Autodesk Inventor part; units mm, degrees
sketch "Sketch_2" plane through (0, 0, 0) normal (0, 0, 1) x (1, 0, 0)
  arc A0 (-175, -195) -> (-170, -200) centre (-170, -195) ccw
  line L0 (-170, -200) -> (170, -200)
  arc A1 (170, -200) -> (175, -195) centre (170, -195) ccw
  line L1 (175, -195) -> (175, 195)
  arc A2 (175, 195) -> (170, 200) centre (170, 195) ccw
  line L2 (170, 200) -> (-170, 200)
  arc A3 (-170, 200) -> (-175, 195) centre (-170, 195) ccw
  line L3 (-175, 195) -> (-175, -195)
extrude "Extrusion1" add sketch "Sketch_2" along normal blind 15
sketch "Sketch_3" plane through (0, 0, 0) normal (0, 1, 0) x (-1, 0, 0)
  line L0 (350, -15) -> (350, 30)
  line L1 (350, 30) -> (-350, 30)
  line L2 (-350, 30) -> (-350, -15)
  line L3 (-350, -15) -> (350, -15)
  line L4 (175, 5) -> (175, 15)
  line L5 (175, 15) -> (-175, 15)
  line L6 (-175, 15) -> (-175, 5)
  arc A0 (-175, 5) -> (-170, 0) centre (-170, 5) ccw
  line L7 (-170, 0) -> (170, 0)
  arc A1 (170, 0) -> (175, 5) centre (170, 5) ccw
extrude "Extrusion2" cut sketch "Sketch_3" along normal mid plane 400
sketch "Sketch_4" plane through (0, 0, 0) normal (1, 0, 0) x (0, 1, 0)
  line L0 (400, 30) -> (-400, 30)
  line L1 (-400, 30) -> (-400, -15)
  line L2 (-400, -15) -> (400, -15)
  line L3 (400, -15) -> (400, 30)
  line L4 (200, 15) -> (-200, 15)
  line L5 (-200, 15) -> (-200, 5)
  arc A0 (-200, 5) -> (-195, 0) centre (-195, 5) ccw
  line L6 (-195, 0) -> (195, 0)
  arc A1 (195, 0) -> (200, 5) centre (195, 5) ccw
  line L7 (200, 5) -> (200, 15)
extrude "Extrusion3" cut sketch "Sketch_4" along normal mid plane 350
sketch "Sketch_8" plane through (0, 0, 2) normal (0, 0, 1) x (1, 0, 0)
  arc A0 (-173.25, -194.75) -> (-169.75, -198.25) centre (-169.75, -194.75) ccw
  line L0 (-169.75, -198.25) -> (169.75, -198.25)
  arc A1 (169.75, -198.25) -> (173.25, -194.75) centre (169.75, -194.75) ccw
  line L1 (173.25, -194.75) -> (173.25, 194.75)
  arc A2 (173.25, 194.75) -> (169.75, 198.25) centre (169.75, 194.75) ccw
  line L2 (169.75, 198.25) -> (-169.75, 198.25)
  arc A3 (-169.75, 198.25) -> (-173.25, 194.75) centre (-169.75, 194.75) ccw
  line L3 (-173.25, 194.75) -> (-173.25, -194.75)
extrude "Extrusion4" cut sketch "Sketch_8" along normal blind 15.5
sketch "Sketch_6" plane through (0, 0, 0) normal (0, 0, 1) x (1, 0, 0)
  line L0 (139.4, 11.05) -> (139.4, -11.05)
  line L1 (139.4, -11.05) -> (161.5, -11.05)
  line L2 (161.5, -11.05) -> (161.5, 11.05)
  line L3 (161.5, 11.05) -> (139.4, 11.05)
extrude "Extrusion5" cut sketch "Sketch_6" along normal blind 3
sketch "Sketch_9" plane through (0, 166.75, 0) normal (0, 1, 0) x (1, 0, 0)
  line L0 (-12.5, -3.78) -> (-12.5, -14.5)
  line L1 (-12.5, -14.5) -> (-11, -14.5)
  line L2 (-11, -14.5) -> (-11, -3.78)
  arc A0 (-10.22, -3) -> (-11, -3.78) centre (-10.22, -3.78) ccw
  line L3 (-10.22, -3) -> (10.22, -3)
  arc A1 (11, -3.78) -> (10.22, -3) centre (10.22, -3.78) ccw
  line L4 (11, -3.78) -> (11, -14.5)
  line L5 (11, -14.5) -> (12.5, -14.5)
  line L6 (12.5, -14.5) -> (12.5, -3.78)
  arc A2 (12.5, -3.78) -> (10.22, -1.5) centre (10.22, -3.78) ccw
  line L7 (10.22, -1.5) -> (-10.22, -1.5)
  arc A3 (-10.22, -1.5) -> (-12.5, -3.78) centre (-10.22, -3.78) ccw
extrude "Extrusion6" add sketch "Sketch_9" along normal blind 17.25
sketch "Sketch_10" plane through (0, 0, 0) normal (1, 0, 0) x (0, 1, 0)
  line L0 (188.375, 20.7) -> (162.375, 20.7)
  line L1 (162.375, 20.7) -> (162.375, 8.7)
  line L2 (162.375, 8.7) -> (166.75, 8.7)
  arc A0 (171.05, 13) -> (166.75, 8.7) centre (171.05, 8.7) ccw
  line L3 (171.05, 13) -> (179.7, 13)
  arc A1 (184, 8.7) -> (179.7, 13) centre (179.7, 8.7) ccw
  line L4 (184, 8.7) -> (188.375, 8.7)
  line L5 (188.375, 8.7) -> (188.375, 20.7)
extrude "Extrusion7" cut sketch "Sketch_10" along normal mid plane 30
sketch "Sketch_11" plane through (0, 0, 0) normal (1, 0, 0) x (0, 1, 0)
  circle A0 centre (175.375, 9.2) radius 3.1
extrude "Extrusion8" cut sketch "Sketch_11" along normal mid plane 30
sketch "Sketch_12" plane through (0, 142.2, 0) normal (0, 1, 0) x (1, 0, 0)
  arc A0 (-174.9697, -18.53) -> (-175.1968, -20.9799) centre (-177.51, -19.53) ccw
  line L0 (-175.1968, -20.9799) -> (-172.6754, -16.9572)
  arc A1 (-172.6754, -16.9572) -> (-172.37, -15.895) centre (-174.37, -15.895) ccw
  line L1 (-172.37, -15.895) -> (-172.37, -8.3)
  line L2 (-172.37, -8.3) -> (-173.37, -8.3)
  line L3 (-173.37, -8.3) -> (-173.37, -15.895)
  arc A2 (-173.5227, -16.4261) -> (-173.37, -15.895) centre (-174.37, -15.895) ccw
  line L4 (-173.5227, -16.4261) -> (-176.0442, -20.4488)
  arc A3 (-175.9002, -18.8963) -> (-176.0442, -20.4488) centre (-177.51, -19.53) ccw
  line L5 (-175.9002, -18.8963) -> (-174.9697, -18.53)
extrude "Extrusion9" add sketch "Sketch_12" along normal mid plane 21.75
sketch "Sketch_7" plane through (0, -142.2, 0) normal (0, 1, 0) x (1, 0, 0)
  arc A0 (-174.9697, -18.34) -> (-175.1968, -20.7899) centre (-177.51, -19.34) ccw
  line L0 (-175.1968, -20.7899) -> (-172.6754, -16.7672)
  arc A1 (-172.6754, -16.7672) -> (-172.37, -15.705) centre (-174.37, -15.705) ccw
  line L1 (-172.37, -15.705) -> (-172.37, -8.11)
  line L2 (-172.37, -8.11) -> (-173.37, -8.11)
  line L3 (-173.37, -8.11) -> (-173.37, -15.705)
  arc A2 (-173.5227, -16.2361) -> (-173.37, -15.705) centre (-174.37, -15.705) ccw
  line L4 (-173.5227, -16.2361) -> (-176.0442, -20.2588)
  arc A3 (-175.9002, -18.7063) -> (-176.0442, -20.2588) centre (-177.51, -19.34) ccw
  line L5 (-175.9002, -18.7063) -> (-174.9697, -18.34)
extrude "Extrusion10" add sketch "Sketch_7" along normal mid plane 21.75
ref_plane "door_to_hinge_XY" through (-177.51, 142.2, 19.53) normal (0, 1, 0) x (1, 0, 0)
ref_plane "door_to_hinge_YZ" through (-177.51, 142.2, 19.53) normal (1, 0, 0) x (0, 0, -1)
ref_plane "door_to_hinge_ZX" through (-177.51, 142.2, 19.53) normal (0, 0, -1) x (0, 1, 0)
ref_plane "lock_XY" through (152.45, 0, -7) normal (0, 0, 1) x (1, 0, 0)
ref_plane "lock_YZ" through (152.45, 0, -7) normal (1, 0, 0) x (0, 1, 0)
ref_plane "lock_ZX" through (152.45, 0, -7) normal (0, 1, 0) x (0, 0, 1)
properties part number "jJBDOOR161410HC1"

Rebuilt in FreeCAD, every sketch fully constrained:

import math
import FreeCAD as App
import Part
import Sketcher

V = App.Vector
Q = App.Units.Quantity


def add_polygon(sketch, points):
    """Adds a closed chain of lines whose ends are joined by coincident constraints."""
    first, n = sketch.GeometryCount, len(points)
    for a, b in zip(points, points[1:] + points[:1]):
        sketch.addGeometry(Part.LineSegment(App.Vector(*a, 0), App.Vector(*b, 0)), False)
    for i in range(n):
        sketch.addConstraint(Sketcher.Constraint("Coincident", first + i, 2, first + (i + 1) % n, 1))

doc = App.newDocument("Part")
body = doc.addObject("PartDesign::Body", "Body")

# Sketch on XY plane
sketch1 = body.newObject("Sketcher::SketchObject", "Sketch")
sketch1.AttachmentSupport = (doc.getObject("XY_Plane"), [""])
sketch1.MapMode = "FlatFace"
sketch1.addGeometry([
    Part.LineSegment(V(-175, 195, 0), V(-175, -195, 0)),  # 0
    Part.ArcOfCircle(Part.Circle(V(-170, -195, 0), V(0, 0, 1), 5), math.radians(180), math.radians(270)),  # 1
    Part.LineSegment(V(-170, -200, 0), V(170, -200, 0)),  # 2
    Part.ArcOfCircle(Part.Circle(V(170, -195, 0), V(0, 0, 1), 5), math.radians(-90), math.radians(0)),  # 3
    Part.LineSegment(V(175, -195, 0), V(175, 195, 0)),  # 4
    Part.ArcOfCircle(Part.Circle(V(170, 195, 0), V(0, 0, 1), 5), math.radians(0), math.radians(90)),  # 5
    Part.LineSegment(V(170, 200, 0), V(-170, 200, 0)),  # 6
    Part.ArcOfCircle(Part.Circle(V(-170, 195, 0), V(0, 0, 1), 5), math.radians(90), math.radians(180)),  # 7
], False)
sketch1.addConstraint([
    Sketcher.Constraint("Tangent", 0, 2, 1, 1),
    Sketcher.Constraint("Tangent", 1, 2, 2, 1),
    Sketcher.Constraint("Tangent", 2, 2, 3, 1),
    Sketcher.Constraint("Tangent", 3, 2, 4, 1),
    Sketcher.Constraint("Tangent", 4, 2, 5, 1),
    Sketcher.Constraint("Tangent", 5, 2, 6, 1),
    Sketcher.Constraint("Tangent", 6, 2, 7, 1),
    Sketcher.Constraint("Tangent", 7, 2, 0, 1),
    Sketcher.Constraint("Vertical", 0),
    Sketcher.Constraint("Horizontal", 2),
    Sketcher.Constraint("Vertical", 4),
    Sketcher.Constraint("Horizontal", 6),
    Sketcher.Constraint("Equal", 1, 3),
    Sketcher.Constraint("Equal", 3, 5),
    Sketcher.Constraint("Equal", 5, 7),
    Sketcher.Constraint("Symmetric", 1, 3, 5, 3, -1, 1),
    Sketcher.Constraint("Radius", 1, 5.0),
    Sketcher.Constraint("DistanceX", 2, 1, 2, 2, 340.0),
    Sketcher.Constraint("DistanceY", 0, 2, 0, 1, 390.0),
])
pad1 = body.newObject("PartDesign::Pad", "Pad")
pad1.Profile = sketch1
pad1.Length = 15

# Sketch on XZ plane
sketch2 = body.newObject("Sketcher::SketchObject", "Sketch001")
sketch2.AttachmentSupport = (doc.getObject("XZ_Plane"), [""])
sketch2.MapMode = "FlatFace"
add_polygon(sketch2, [(350, -15), (-350, -15), (-350, 30), (350, 30)])  # lines 0-3
sketch2.addGeometry(Part.LineSegment(V(-175, 15, 0), V(-175, 5, 0)), False)  # 4
sketch2.addGeometry(Part.ArcOfCircle(Part.Circle(V(-170, 5, 0), V(0, 0, 1), 5), math.radians(180), math.radians(270)), False)  # 5
sketch2.addGeometry(Part.LineSegment(V(-170, 0, 0), V(170, 0, 0)), False)  # 6
sketch2.addGeometry(Part.ArcOfCircle(Part.Circle(V(170, 5, 0), V(0, 0, 1), 5), math.radians(-90), math.radians(0)), False)  # 7
sketch2.addGeometry(Part.LineSegment(V(175, 5, 0), V(175, 15, 0)), False)  # 8
sketch2.addGeometry(Part.LineSegment(V(175, 15, 0), V(-175, 15, 0)), False)  # 9
sketch2.addConstraint([
    Sketcher.Constraint("Tangent", 4, 2, 5, 1),
    Sketcher.Constraint("Tangent", 5, 2, 6, 1),
    Sketcher.Constraint("Tangent", 6, 2, 7, 1),
    Sketcher.Constraint("Tangent", 7, 2, 8, 1),
    Sketcher.Constraint("Coincident", 8, 2, 9, 1),
    Sketcher.Constraint("Coincident", 9, 2, 4, 1),
    Sketcher.Constraint("Horizontal", 0),
    Sketcher.Constraint("Vertical", 1),
    Sketcher.Constraint("Horizontal", 2),
    Sketcher.Constraint("Vertical", 3),
    Sketcher.Constraint("Vertical", 4),
    Sketcher.Constraint("Horizontal", 6),
    Sketcher.Constraint("Vertical", 8),
    Sketcher.Constraint("Horizontal", 9),
    Sketcher.Constraint("Equal", 5, 7),
    Sketcher.Constraint("Symmetric", 5, 2, 6, 2, -1, 1),
    Sketcher.Constraint("Radius", 5, 5.0),
    Sketcher.Constraint("DistanceX", 0, 2, 0, 1, 700.0),
    Sketcher.Constraint("DistanceX", 6, 1, 6, 2, 340.0),
    Sketcher.Constraint("DistanceY", 1, 1, 1, 2, 45.0),
    Sketcher.Constraint("DistanceY", 4, 2, 4, 1, 10.0),
    Sketcher.Constraint("DistanceX", 0, 2, -1, 1, 350.0),
    Sketcher.Constraint("DistanceY", 0, 2, -1, 1, 15.0),
])
pocket1 = body.newObject("PartDesign::Pocket", "Pocket")
pocket1.Profile = sketch2
pocket1.Length = 400
pocket1.Midplane = True

# Sketch on YZ plane
sketch3 = body.newObject("Sketcher::SketchObject", "Sketch002")
sketch3.AttachmentSupport = (doc.getObject("YZ_Plane"), [""])
sketch3.MapMode = "FlatFace"
add_polygon(sketch3, [(400, -15), (400, 30), (-400, 30), (-400, -15)])  # lines 0-3
sketch3.addGeometry(Part.LineSegment(V(-200, 15, 0), V(200, 15, 0)), False)  # 4
sketch3.addGeometry(Part.LineSegment(V(200, 15, 0), V(200, 5, 0)), False)  # 5
sketch3.addGeometry(Part.ArcOfCircle(Part.Circle(V(195, 5, 0), V(0, 0, 1), 5), math.radians(-90), math.radians(0)), False)  # 6
sketch3.addGeometry(Part.LineSegment(V(195, 0, 0), V(-195, 0, 0)), False)  # 7
sketch3.addGeometry(Part.ArcOfCircle(Part.Circle(V(-195, 5, 0), V(0, 0, 1), 5), math.radians(180), math.radians(270)), False)  # 8
sketch3.addGeometry(Part.LineSegment(V(-200, 5, 0), V(-200, 15, 0)), False)  # 9
sketch3.addConstraint([
    Sketcher.Constraint("Coincident", 4, 2, 5, 1),
    Sketcher.Constraint("Tangent", 5, 2, 6, 2),
    Sketcher.Constraint("Tangent", 6, 1, 7, 1),
    Sketcher.Constraint("Tangent", 7, 2, 8, 2),
    Sketcher.Constraint("Tangent", 8, 1, 9, 1),
    Sketcher.Constraint("Coincident", 9, 2, 4, 1),
    Sketcher.Constraint("Vertical", 0),
    Sketcher.Constraint("Horizontal", 1),
    Sketcher.Constraint("Vertical", 2),
    Sketcher.Constraint("Horizontal", 3),
    Sketcher.Constraint("Horizontal", 4),
    Sketcher.Constraint("Vertical", 5),
    Sketcher.Constraint("Horizontal", 7),
    Sketcher.Constraint("Vertical", 9),
    Sketcher.Constraint("Equal", 6, 8),
    Sketcher.Constraint("Symmetric", 6, 1, 7, 2, -1, 1),
    Sketcher.Constraint("Radius", 6, 5.0),
    Sketcher.Constraint("DistanceX", 1, 2, 1, 1, 800.0),
    Sketcher.Constraint("DistanceX", 4, 1, 4, 2, 400.0),
    Sketcher.Constraint("DistanceY", 0, 1, 0, 2, 45.0),
    Sketcher.Constraint("DistanceY", 5, 2, 5, 1, 10.0),
    Sketcher.Constraint("DistanceX", -1, 1, 0, 2, 400.0),
    Sketcher.Constraint("DistanceY", -1, 1, 0, 2, 30.0),
])
pocket2 = body.newObject("PartDesign::Pocket", "Pocket001")
pocket2.Profile = sketch3
pocket2.Length = 350
pocket2.Midplane = True

# Sketch on XY plane
sketch4 = body.newObject("Sketcher::SketchObject", "Sketch003")
sketch4.AttachmentSupport = (doc.getObject("XY_Plane"), [""])
sketch4.MapMode = "FlatFace"
sketch4.AttachmentOffset = App.Placement(V(0, 0, 2), App.Rotation())
sketch4.addGeometry([
    Part.LineSegment(V(-173.2, 194.8, 0), V(-173.2, -194.8, 0)),  # 0
    Part.ArcOfCircle(Part.Circle(V(-169.8, -194.8, 0), V(0, 0, 1), 3.5), math.radians(180), math.radians(270)),  # 1
    Part.LineSegment(V(-169.8, -198.2, 0), V(169.8, -198.2, 0)),  # 2
    Part.ArcOfCircle(Part.Circle(V(169.8, -194.8, 0), V(0, 0, 1), 3.5), math.radians(-90), math.radians(0)),  # 3
    Part.LineSegment(V(173.2, -194.8, 0), V(173.2, 194.8, 0)),  # 4
    Part.ArcOfCircle(Part.Circle(V(169.8, 194.8, 0), V(0, 0, 1), 3.5), math.radians(0), math.radians(90)),  # 5
    Part.LineSegment(V(169.8, 198.2, 0), V(-169.8, 198.2, 0)),  # 6
    Part.ArcOfCircle(Part.Circle(V(-169.8, 194.8, 0), V(0, 0, 1), 3.5), math.radians(90), math.radians(180)),  # 7
], False)
sketch4.addConstraint([
    Sketcher.Constraint("Tangent", 0, 2, 1, 1),
    Sketcher.Constraint("Tangent", 1, 2, 2, 1),
    Sketcher.Constraint("Tangent", 2, 2, 3, 1),
    Sketcher.Constraint("Tangent", 3, 2, 4, 1),
    Sketcher.Constraint("Tangent", 4, 2, 5, 1),
    Sketcher.Constraint("Tangent", 5, 2, 6, 1),
    Sketcher.Constraint("Tangent", 6, 2, 7, 1),
    Sketcher.Constraint("Tangent", 7, 2, 0, 1),
    Sketcher.Constraint("Vertical", 0),
    Sketcher.Constraint("Horizontal", 2),
    Sketcher.Constraint("Vertical", 4),
    Sketcher.Constraint("Horizontal", 6),
    Sketcher.Constraint("Equal", 1, 3),
    Sketcher.Constraint("Equal", 3, 5),
    Sketcher.Constraint("Equal", 5, 7),
    Sketcher.Constraint("Symmetric", 1, 3, 5, 3, -1, 1),
    Sketcher.Constraint("Radius", 1, 3.5),
    Sketcher.Constraint("DistanceX", 2, 1, 2, 2, 339.5),
    Sketcher.Constraint("DistanceY", 0, 2, 0, 1, 389.5),
])
pocket3 = body.newObject("PartDesign::Pocket", "Pocket002")
pocket3.Profile = sketch4
pocket3.Length = 15.5
pocket3.Reversed = True

# Sketch on XY plane
sketch5 = body.newObject("Sketcher::SketchObject", "Sketch004")
sketch5.AttachmentSupport = (doc.getObject("XY_Plane"), [""])
sketch5.MapMode = "FlatFace"
add_polygon(sketch5, [(162, 11), (139, 11), (139, -11), (162, -11)])  # lines 0-3
sketch5.addConstraint([
    Sketcher.Constraint("Horizontal", 0),
    Sketcher.Constraint("Vertical", 1),
    Sketcher.Constraint("Horizontal", 2),
    Sketcher.Constraint("Vertical", 3),
    Sketcher.Constraint("Equal", 2, 1),
    Sketcher.Constraint("DistanceX", 0, 2, 0, 1, 22.1),
    Sketcher.Constraint("DistanceX", -1, 1, 0, 2, 139.4),
    Sketcher.Constraint("DistanceY", -1, 1, 0, 2, 11.05),
])
pocket4 = body.newObject("PartDesign::Pocket", "Pocket003")
pocket4.Profile = sketch5
pocket4.Length = 3
pocket4.Reversed = True

# Sketch on XZ plane
sketch6 = body.newObject("Sketcher::SketchObject", "Sketch005")
sketch6.AttachmentSupport = (doc.getObject("XZ_Plane"), [""])
sketch6.MapMode = "FlatFace"
sketch6.AttachmentOffset = App.Placement(V(0, 0, -166.75), App.Rotation())
sketch6.addGeometry([
    Part.ArcOfCircle(Part.Circle(V(-10.2, 3.8, 0), V(0, 0, 1), 2.3), math.radians(180), math.radians(270)),  # 0
    Part.LineSegment(V(-12.5, 3.8, 0), V(-12.5, 14.5, 0)),  # 1
    Part.LineSegment(V(-12.5, 14.5, 0), V(-11, 14.5, 0)),  # 2
    Part.LineSegment(V(-11, 14.5, 0), V(-11, 3.8, 0)),  # 3
    Part.ArcOfCircle(Part.Circle(V(-10.2, 3.8, 0), V(0, 0, 1), 0.8), math.radians(180), math.radians(270)),  # 4
    Part.LineSegment(V(-10.2, 3, 0), V(10.2, 3, 0)),  # 5
    Part.ArcOfCircle(Part.Circle(V(10.2, 3.8, 0), V(0, 0, 1), 0.8), math.radians(-90), math.radians(0)),  # 6
    Part.LineSegment(V(11, 3.8, 0), V(11, 14.5, 0)),  # 7
    Part.LineSegment(V(11, 14.5, 0), V(12.5, 14.5, 0)),  # 8
    Part.LineSegment(V(12.5, 14.5, 0), V(12.5, 3.8, 0)),  # 9
    Part.ArcOfCircle(Part.Circle(V(10.2, 3.8, 0), V(0, 0, 1), 2.3), math.radians(-90), math.radians(0)),  # 10
    Part.LineSegment(V(10.2, 1.5, 0), V(-10.2, 1.5, 0)),  # 11
], False)
sketch6.addConstraint([
    Sketcher.Constraint("Tangent", 0, 1, 1, 1),
    Sketcher.Constraint("Coincident", 1, 2, 2, 1),
    Sketcher.Constraint("Coincident", 2, 2, 3, 1),
    Sketcher.Constraint("Tangent", 3, 2, 4, 1),
    Sketcher.Constraint("Tangent", 4, 2, 5, 1),
    Sketcher.Constraint("Tangent", 5, 2, 6, 1),
    Sketcher.Constraint("Tangent", 6, 2, 7, 1),
    Sketcher.Constraint("Coincident", 7, 2, 8, 1),
    Sketcher.Constraint("Coincident", 8, 2, 9, 1),
    Sketcher.Constraint("Tangent", 9, 2, 10, 2),
    Sketcher.Constraint("Tangent", 10, 1, 11, 1),
    Sketcher.Constraint("Tangent", 11, 2, 0, 2),
    Sketcher.Constraint("Vertical", 1),
    Sketcher.Constraint("Horizontal", 2),
    Sketcher.Constraint("Vertical", 3),
    Sketcher.Constraint("Horizontal", 5),
    Sketcher.Constraint("Vertical", 7),
    Sketcher.Constraint("Horizontal", 8),
    Sketcher.Constraint("Vertical", 9),
    Sketcher.Constraint("Horizontal", 11),
    Sketcher.Constraint("Coincident", 4, 3, 0, 3),
    Sketcher.Constraint("Coincident", 10, 3, 6, 3),
    Sketcher.Constraint("Equal", 4, 6),
    Sketcher.Constraint("Symmetric", 2, 2, 7, 2, -2),
    Sketcher.Constraint("Radius", 0, 2.28),
    Sketcher.Constraint("Radius", 4, 0.78),
    Sketcher.Constraint("DistanceX", 2, 2, -1, 1, 11.0),
    Sketcher.Constraint("DistanceY", -1, 1, 4, 2, 3.0),
    Sketcher.Constraint("DistanceY", 1, 1, 1, 2, 10.72),
])
pad2 = body.newObject("PartDesign::Pad", "Pad001")
pad2.Profile = sketch6
pad2.Length = 17.25
pad2.Reversed = True

# Sketch on YZ plane
sketch7 = body.newObject("Sketcher::SketchObject", "Sketch006")
sketch7.AttachmentSupport = (doc.getObject("YZ_Plane"), [""])
sketch7.MapMode = "FlatFace"
sketch7.addGeometry([
    Part.LineSegment(V(188.4, 8.7, 0), V(188.4, 20.7, 0)),  # 0
    Part.LineSegment(V(188.4, 20.7, 0), V(162.4, 20.7, 0)),  # 1
    Part.LineSegment(V(162.4, 20.7, 0), V(162.4, 8.7, 0)),  # 2
    Part.LineSegment(V(162.4, 8.7, 0), V(166.8, 8.7, 0)),  # 3
    Part.ArcOfCircle(Part.Circle(V(171.1, 8.7, 0), V(0, 0, 1), 4.3), math.radians(90), math.radians(180)),  # 4
    Part.LineSegment(V(171.1, 13, 0), V(179.7, 13, 0)),  # 5
    Part.ArcOfCircle(Part.Circle(V(179.7, 8.7, 0), V(0, 0, 1), 4.3), math.radians(0), math.radians(90)),  # 6
    Part.LineSegment(V(184, 8.7, 0), V(188.4, 8.7, 0)),  # 7
], False)
sketch7.addConstraint([
    Sketcher.Constraint("Coincident", 0, 2, 1, 1),
    Sketcher.Constraint("Coincident", 1, 2, 2, 1),
    Sketcher.Constraint("Coincident", 2, 2, 3, 1),
    Sketcher.Constraint("Coincident", 3, 2, 4, 2),
    Sketcher.Constraint("Tangent", 4, 1, 5, 1),
    Sketcher.Constraint("Tangent", 5, 2, 6, 2),
    Sketcher.Constraint("Coincident", 6, 1, 7, 1),
    Sketcher.Constraint("Coincident", 7, 2, 0, 1),
    Sketcher.Constraint("Vertical", 0),
    Sketcher.Constraint("Horizontal", 1),
    Sketcher.Constraint("Vertical", 2),
    Sketcher.Constraint("Horizontal", 3),
    Sketcher.Constraint("Horizontal", 5),
    Sketcher.Constraint("Horizontal", 7),
    Sketcher.Constraint("Equal", 4, 6),
    Sketcher.Constraint("Horizontal", 6, 3, 2, 2),
    Sketcher.Constraint("Horizontal", 3, 2, 6, 1),
    Sketcher.Constraint("Equal", 3, 7),
    Sketcher.Constraint("Radius", 4, 4.3),
    Sketcher.Constraint("DistanceX", 1, 2, 1, 1, 26.0),
    Sketcher.Constraint("DistanceY", 0, 1, 0, 2, 12.0),
    Sketcher.Constraint("DistanceY", -1, 1, 4, 1, 13.0),
    Sketcher.Constraint("DistanceX", -1, 1, 6, 1, 184.0),
    Sketcher.Constraint("DistanceX", 5, 1, 5, 2, 8.65),
])
pocket5 = body.newObject("PartDesign::Pocket", "Pocket004")
pocket5.Profile = sketch7
pocket5.Length = 30
pocket5.Midplane = True

# Sketch on YZ plane
sketch8 = body.newObject("Sketcher::SketchObject", "Sketch007")
sketch8.AttachmentSupport = (doc.getObject("YZ_Plane"), [""])
sketch8.MapMode = "FlatFace"
sketch8.addGeometry(Part.Circle(V(175.4, 9.2, 0), V(0, 0, 1), 3.1), False)
sketch8.addConstraint([
    Sketcher.Constraint("Diameter", 0, 6.2),
    Sketcher.Constraint("DistanceY", -1, 1, 0, 3, 9.2),
    Sketcher.Constraint("DistanceX", -1, 1, 0, 3, 175.375),
])
pocket6 = body.newObject("PartDesign::Pocket", "Pocket005")
pocket6.Profile = sketch8
pocket6.Length = 30
pocket6.Midplane = True

# Sketch on XZ plane
sketch9 = body.newObject("Sketcher::SketchObject", "Sketch008")
sketch9.AttachmentSupport = (doc.getObject("XZ_Plane"), [""])
sketch9.MapMode = "FlatFace"
sketch9.AttachmentOffset = App.Placement(V(0, 0, -142.2), App.Rotation())
sketch9.addGeometry([
    Part.LineSegment(V(-175.9, 18.9, 0), V(-175, 18.5, 0)),  # 0
    Part.ArcOfCircle(Part.Circle(V(-177.5, 19.5, 0), V(0, 0, 1), 2.7), math.radians(32), math.radians(339)),  # 1
    Part.LineSegment(V(-175.2, 21, 0), V(-172.7, 17, 0)),  # 2
    Part.ArcOfCircle(Part.Circle(V(-174.4, 15.9, 0), V(0, 0, 1), 2), math.radians(0), math.radians(32)),  # 3
    Part.LineSegment(V(-172.4, 15.9, 0), V(-172.4, 8.3, 0)),  # 4
    Part.LineSegment(V(-172.4, 8.3, 0), V(-173.4, 8.3, 0)),  # 5
    Part.LineSegment(V(-173.4, 8.3, 0), V(-173.4, 15.9, 0)),  # 6
    Part.ArcOfCircle(Part.Circle(V(-174.4, 15.9, 0), V(0, 0, 1), 1), math.radians(0), math.radians(32)),  # 7
    Part.LineSegment(V(-173.5, 16.4, 0), V(-176, 20.4, 0)),  # 8
    Part.ArcOfCircle(Part.Circle(V(-177.5, 19.5, 0), V(0, 0, 1), 1.7), math.radians(32), math.radians(339)),  # 9
], False)
sketch9.addConstraint([
    Sketcher.Constraint("Coincident", 0, 2, 1, 2),
    Sketcher.Constraint("Tangent", 1, 1, 2, 1),
    Sketcher.Constraint("Tangent", 2, 2, 3, 2),
    Sketcher.Constraint("Tangent", 3, 1, 4, 1),
    Sketcher.Constraint("Coincident", 4, 2, 5, 1),
    Sketcher.Constraint("Coincident", 5, 2, 6, 1),
    Sketcher.Constraint("Tangent", 6, 2, 7, 1),
    Sketcher.Constraint("Tangent", 7, 2, 8, 1),
    Sketcher.Constraint("Tangent", 8, 2, 9, 1),
    Sketcher.Constraint("Coincident", 9, 2, 0, 1),
    Sketcher.Constraint("Vertical", 4),
    Sketcher.Constraint("Horizontal", 5),
    Sketcher.Constraint("Vertical", 6),
    Sketcher.Constraint("Coincident", 7, 3, 3, 3),
    Sketcher.Constraint("Coincident", 9, 3, 1, 3),
    Sketcher.Constraint("Parallel", 2, 8),
    Sketcher.Constraint("Radius", 3, 2.0),
    Sketcher.Constraint("Radius", 7, 1.0),
    Sketcher.Constraint("Radius", 1, 2.73),
    Sketcher.Constraint("DistanceY", 0, 2, 1, 3, 1.0),
    Sketcher.Constraint("DistanceY", -1, 1, 4, 2, 8.3),
    Sketcher.Constraint("Angle", 2, Q("-57.9208 deg")),
    Sketcher.Constraint("DistanceY", 4, 2, 4, 1, 7.595),
    Sketcher.Constraint("DistanceX", 1, 3, -1, 1, 177.51),
    Sketcher.Constraint("DistanceY", -1, 1, 1, 3, 19.53),
    Sketcher.Constraint("DistanceX", 8, 2, 9, 2, 0.144),
])
pad3 = body.newObject("PartDesign::Pad", "Pad002")
pad3.Profile = sketch9
pad3.Length = 21.75
pad3.Midplane = True

# Sketch on XZ plane
sketch10 = body.newObject("Sketcher::SketchObject", "Sketch009")
sketch10.AttachmentSupport = (doc.getObject("XZ_Plane"), [""])
sketch10.MapMode = "FlatFace"
sketch10.AttachmentOffset = App.Placement(V(0, 0, 142.2), App.Rotation())
sketch10.addGeometry([
    Part.LineSegment(V(-175.9, 18.7, 0), V(-175, 18.3, 0)),  # 0
    Part.ArcOfCircle(Part.Circle(V(-177.5, 19.3, 0), V(0, 0, 1), 2.7), math.radians(32), math.radians(339)),  # 1
    Part.LineSegment(V(-175.2, 20.8, 0), V(-172.7, 16.8, 0)),  # 2
    Part.ArcOfCircle(Part.Circle(V(-174.4, 15.7, 0), V(0, 0, 1), 2), math.radians(0), math.radians(32)),  # 3
    Part.LineSegment(V(-172.4, 15.7, 0), V(-172.4, 8.1, 0)),  # 4
    Part.LineSegment(V(-172.4, 8.1, 0), V(-173.4, 8.1, 0)),  # 5
    Part.LineSegment(V(-173.4, 8.1, 0), V(-173.4, 15.7, 0)),  # 6
    Part.ArcOfCircle(Part.Circle(V(-174.4, 15.7, 0), V(0, 0, 1), 1), math.radians(0), math.radians(32)),  # 7
    Part.LineSegment(V(-173.5, 16.2, 0), V(-176, 20.3, 0)),  # 8
    Part.ArcOfCircle(Part.Circle(V(-177.5, 19.3, 0), V(0, 0, 1), 1.7), math.radians(32), math.radians(339)),  # 9
], False)
sketch10.addConstraint([
    Sketcher.Constraint("Coincident", 0, 2, 1, 2),
    Sketcher.Constraint("Tangent", 1, 1, 2, 1),
    Sketcher.Constraint("Tangent", 2, 2, 3, 2),
    Sketcher.Constraint("Tangent", 3, 1, 4, 1),
    Sketcher.Constraint("Coincident", 4, 2, 5, 1),
    Sketcher.Constraint("Coincident", 5, 2, 6, 1),
    Sketcher.Constraint("Tangent", 6, 2, 7, 1),
    Sketcher.Constraint("Tangent", 7, 2, 8, 1),
    Sketcher.Constraint("Tangent", 8, 2, 9, 1),
    Sketcher.Constraint("Coincident", 9, 2, 0, 1),
    Sketcher.Constraint("Vertical", 4),
    Sketcher.Constraint("Horizontal", 5),
    Sketcher.Constraint("Vertical", 6),
    Sketcher.Constraint("Coincident", 7, 3, 3, 3),
    Sketcher.Constraint("Coincident", 9, 3, 1, 3),
    Sketcher.Constraint("Parallel", 2, 8),
    Sketcher.Constraint("Radius", 3, 2.0),
    Sketcher.Constraint("Radius", 7, 1.0),
    Sketcher.Constraint("Radius", 1, 2.73),
    Sketcher.Constraint("DistanceY", 0, 2, 1, 3, 1.0),
    Sketcher.Constraint("Angle", 2, Q("-57.9208 deg")),
    Sketcher.Constraint("DistanceY", 4, 2, 4, 1, 7.595),
    Sketcher.Constraint("DistanceX", 1, 3, -1, 1, 177.51),
    Sketcher.Constraint("DistanceY", -1, 1, 1, 3, 19.34),
    Sketcher.Constraint("DistanceX", 3, 3, -1, 1, 174.37),
    Sketcher.Constraint("DistanceX", 8, 2, 9, 2, 0.144),
])
pad4 = body.newObject("PartDesign::Pad", "Pad003")
pad4.Profile = sketch10
pad4.Length = 21.75
pad4.Midplane = True

doc.recompute()
